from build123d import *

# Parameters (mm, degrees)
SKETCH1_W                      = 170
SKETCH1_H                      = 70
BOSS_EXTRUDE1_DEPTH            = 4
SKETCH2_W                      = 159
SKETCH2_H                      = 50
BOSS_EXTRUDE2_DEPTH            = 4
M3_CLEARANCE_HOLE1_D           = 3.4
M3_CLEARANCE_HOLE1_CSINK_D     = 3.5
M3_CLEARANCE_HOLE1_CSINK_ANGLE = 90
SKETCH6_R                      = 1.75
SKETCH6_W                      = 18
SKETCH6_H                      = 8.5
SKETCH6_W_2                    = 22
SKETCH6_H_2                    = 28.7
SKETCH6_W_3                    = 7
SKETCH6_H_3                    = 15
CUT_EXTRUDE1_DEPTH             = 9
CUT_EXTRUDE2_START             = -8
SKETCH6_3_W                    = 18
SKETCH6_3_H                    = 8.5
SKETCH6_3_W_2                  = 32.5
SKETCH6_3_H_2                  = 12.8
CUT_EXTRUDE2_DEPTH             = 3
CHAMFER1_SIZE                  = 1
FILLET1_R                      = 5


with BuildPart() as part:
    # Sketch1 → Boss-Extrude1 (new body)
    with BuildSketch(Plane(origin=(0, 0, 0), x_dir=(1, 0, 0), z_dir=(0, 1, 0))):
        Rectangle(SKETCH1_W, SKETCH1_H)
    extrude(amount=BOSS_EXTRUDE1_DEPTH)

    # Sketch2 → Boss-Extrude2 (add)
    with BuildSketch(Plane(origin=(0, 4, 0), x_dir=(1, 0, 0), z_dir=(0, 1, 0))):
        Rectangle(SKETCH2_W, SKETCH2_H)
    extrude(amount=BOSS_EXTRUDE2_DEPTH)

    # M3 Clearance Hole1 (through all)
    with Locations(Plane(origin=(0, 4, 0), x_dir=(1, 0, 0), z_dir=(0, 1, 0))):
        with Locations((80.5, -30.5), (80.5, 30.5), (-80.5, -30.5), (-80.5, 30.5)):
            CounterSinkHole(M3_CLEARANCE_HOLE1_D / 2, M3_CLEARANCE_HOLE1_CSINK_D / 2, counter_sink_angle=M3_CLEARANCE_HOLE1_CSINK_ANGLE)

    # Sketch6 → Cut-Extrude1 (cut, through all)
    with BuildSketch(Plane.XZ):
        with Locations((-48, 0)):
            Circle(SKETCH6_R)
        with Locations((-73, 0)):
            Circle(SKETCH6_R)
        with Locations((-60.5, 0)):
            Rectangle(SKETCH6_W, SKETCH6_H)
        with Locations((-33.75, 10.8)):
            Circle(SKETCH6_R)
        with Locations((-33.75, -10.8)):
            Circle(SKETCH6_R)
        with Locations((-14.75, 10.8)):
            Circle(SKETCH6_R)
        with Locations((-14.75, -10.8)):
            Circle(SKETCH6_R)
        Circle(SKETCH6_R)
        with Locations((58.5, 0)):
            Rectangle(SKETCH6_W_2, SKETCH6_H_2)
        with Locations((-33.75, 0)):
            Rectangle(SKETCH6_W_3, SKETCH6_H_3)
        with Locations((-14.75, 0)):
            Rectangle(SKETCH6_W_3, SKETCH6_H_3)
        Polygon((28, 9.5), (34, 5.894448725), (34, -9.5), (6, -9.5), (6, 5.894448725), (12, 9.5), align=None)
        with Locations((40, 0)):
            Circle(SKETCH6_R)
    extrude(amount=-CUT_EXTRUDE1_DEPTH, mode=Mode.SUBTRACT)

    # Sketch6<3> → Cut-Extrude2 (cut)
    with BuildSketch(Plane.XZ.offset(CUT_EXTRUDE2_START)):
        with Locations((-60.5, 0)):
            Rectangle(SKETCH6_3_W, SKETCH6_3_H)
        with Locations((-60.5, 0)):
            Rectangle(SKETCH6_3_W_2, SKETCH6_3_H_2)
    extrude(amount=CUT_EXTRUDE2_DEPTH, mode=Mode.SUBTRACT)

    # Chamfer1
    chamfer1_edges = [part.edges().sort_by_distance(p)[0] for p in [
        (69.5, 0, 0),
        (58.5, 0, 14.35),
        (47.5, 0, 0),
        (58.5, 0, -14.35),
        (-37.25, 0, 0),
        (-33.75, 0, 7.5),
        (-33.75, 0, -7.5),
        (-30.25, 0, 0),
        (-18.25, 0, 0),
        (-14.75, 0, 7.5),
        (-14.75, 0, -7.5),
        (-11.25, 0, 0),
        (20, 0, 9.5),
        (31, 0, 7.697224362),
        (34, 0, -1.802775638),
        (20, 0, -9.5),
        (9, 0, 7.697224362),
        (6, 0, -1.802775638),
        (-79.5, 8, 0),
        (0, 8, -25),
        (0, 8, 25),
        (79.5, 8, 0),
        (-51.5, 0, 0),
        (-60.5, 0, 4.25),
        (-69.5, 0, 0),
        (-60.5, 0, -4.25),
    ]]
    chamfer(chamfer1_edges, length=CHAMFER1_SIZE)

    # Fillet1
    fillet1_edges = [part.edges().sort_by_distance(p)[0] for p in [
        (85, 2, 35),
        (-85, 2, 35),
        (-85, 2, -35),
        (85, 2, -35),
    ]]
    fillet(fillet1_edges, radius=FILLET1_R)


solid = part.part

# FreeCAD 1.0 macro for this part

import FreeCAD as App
import Part
import Sketcher
from FreeCAD import Vector
Q = App.Units.Quantity


def edges_at(feature, points):
    """Names of the edges that pass closest to the given points."""
    edges = feature.Shape.Edges
    near = lambda p: min(range(len(edges)), key=lambda i: edges[i].distToShape(Part.Vertex(*p))[0])
    return sorted({f"Edge{near(p) + 1}" for p in points})

doc = App.newDocument("Part")
params = doc.addObject("Spreadsheet::Sheet", "Params")
for row, (alias, value) in enumerate([
    ("sketch1_width", "170 mm"),
    ("sketch1_height", "70 mm"),
    ("pad1_length", "4 mm"),
    ("sketch2_width", "159 mm"),
    ("sketch2_height", "50 mm"),
    ("pad2_length", "4 mm"),
    ("sketch3_diameter", "3.4 mm"),
    ("hole_diameter", "3.4 mm"),
    ("hole_csink_diameter", "3.5 mm"),
    ("sketch4_diameter", "3.5 mm"),
    ("sketch4_width", "18 mm"),
    ("sketch4_width2", "22 mm"),
    ("sketch4_width3", "7 mm"),
    ("sketch4_width4", "16 mm"),
    ("sketch5_width", "32.5 mm"),
    ("sketch5_height", "12.8 mm"),
    ("pocket2_length", "3 mm"),
    ("chamfer_size", "1 mm"),
    ("fillet_radius", "5 mm"),
], start=1):
    params.set(f"A{row}", alias)
    params.set(f"B{row}", "=" + value)
    params.setAlias(f"B{row}", alias)

body = doc.addObject("PartDesign::Body", "Body")

# Sketch on XZ plane
sketch1 = doc.addObject("Sketcher::SketchObject", "Sketch")
body.addObject(sketch1)
sketch1.AttachmentSupport = (doc.XZ_Plane, [""])
sketch1.MapMode = "FlatFace"
sketch1.addGeometry([
    Part.LineSegment(Vector(-85, -35, 0), Vector(-85, 35, 0)),
    Part.LineSegment(Vector(-85, 35, 0), Vector(85, 35, 0)),
    Part.LineSegment(Vector(85, 35, 0), Vector(85, -35, 0)),
    Part.LineSegment(Vector(85, -35, 0), Vector(-85, -35, 0)),
], False)
sketch1.addConstraint([
    Sketcher.Constraint("Coincident", 0, 2, 1, 1),
    Sketcher.Constraint("Coincident", 1, 2, 2, 1),
    Sketcher.Constraint("Coincident", 2, 2, 3, 1),
    Sketcher.Constraint("Coincident", 3, 2, 0, 1),
    Sketcher.Constraint("Vertical", 0),
    Sketcher.Constraint("Horizontal", 1),
    Sketcher.Constraint("Vertical", 2),
    Sketcher.Constraint("Horizontal", 3),
    Sketcher.Constraint("Symmetric", 0, 2, 2, 2, -1, 1),
    Sketcher.Constraint("DistanceX", 1, 1, 1, 2, Q("170 mm")),
    Sketcher.Constraint("DistanceY", 0, 1, 0, 2, Q("70 mm")),
])
sketch1.setExpression("Constraints[9]", "Params.sketch1_width")
sketch1.setExpression("Constraints[10]", "Params.sketch1_height")
pad1 = doc.addObject("PartDesign::Pad", "Pad")
body.addObject(pad1)
pad1.Profile = sketch1
pad1.setExpression("Length", "Params.pad1_length")
pad1.Reversed = True

# Sketch on XZ plane
sketch2 = doc.addObject("Sketcher::SketchObject", "Sketch001")
body.addObject(sketch2)
sketch2.AttachmentSupport = (doc.XZ_Plane, [""])
sketch2.MapMode = "FlatFace"
sketch2.AttachmentOffset = App.Placement(Vector(0, 0, -4), App.Rotation())
sketch2.addGeometry([
    Part.LineSegment(Vector(-80, -25, 0), Vector(-80, 25, 0)),
    Part.LineSegment(Vector(-80, 25, 0), Vector(80, 25, 0)),
    Part.LineSegment(Vector(80, 25, 0), Vector(80, -25, 0)),
    Part.LineSegment(Vector(80, -25, 0), Vector(-80, -25, 0)),
], False)
sketch2.addConstraint([
    Sketcher.Constraint("Coincident", 0, 2, 1, 1),
    Sketcher.Constraint("Coincident", 1, 2, 2, 1),
    Sketcher.Constraint("Coincident", 2, 2, 3, 1),
    Sketcher.Constraint("Coincident", 3, 2, 0, 1),
    Sketcher.Constraint("Vertical", 0),
    Sketcher.Constraint("Horizontal", 1),
    Sketcher.Constraint("Vertical", 2),
    Sketcher.Constraint("Horizontal", 3),
    Sketcher.Constraint("Symmetric", 0, 2, 2, 2, -1, 1),
    Sketcher.Constraint("DistanceX", 1, 1, 1, 2, Q("159 mm")),
    Sketcher.Constraint("DistanceY", 0, 1, 0, 2, Q("50 mm")),
])
sketch2.setExpression("Constraints[9]", "Params.sketch2_width")
sketch2.setExpression("Constraints[10]", "Params.sketch2_height")
pad2 = doc.addObject("PartDesign::Pad", "Pad001")
body.addObject(pad2)
pad2.Profile = sketch2
pad2.setExpression("Length", "Params.pad2_length")
pad2.Reversed = True

# Sketch on XZ plane
sketch3 = doc.addObject("Sketcher::SketchObject", "Sketch002")
body.addObject(sketch3)
sketch3.AttachmentSupport = (doc.XZ_Plane, [""])
sketch3.MapMode = "FlatFace"
sketch3.AttachmentOffset = App.Placement(Vector(0, 0, -4), App.Rotation())
sketch3.addGeometry([
    Part.Circle(Vector(80.5, 30.5, 0), Vector(0, 0, 1), 1.7),
    Part.Circle(Vector(80.5, -30.5, 0), Vector(0, 0, 1), 1.7),
    Part.Circle(Vector(-80.5, 30.5, 0), Vector(0, 0, 1), 1.7),
    Part.Circle(Vector(-80.5, -30.5, 0), Vector(0, 0, 1), 1.7),
], False)
sketch3.addConstraint([
    Sketcher.Constraint("Equal", 0, 1),
    Sketcher.Constraint("Equal", 1, 2),
    Sketcher.Constraint("Equal", 2, 3),
    Sketcher.Constraint("Symmetric", 1, 3, 2, 3, -1, 1),
    Sketcher.Constraint("Symmetric", 0, 3, 3, 3, -1, 1),
    Sketcher.Constraint("Symmetric", 0, 3, 2, 3, -2),
    Sketcher.Constraint("Diameter", 0, Q("3.4 mm")),
    Sketcher.Constraint("DistanceY", 1, 3, 0, 3, Q("61 mm")),
    Sketcher.Constraint("DistanceX", 2, 3, 0, 3, Q("161 mm")),
])
sketch3.setExpression("Constraints[6]", "Params.sketch3_diameter")
doc.recompute()
hole = doc.addObject("PartDesign::Hole", "Hole")
body.addObject(hole)
hole.Profile = sketch3
hole.ThreadType = "None"
hole.setExpression("Diameter", "Params.hole_diameter")
hole.DepthType = "ThroughAll"
hole.HoleCutType = "Countersink"
hole.setExpression("HoleCutDiameter", "Params.hole_csink_diameter")
hole.HoleCutCountersinkAngle = 90
hole.Reversed = True

# Sketch on XZ plane
sketch4 = doc.addObject("Sketcher::SketchObject", "Sketch003")
body.addObject(sketch4)
sketch4.AttachmentSupport = (doc.XZ_Plane, [""])
sketch4.MapMode = "FlatFace"
sketch4.addGeometry([
    Part.Circle(Vector(-48, 0, 0), Vector(0, 0, 1), 1.8),  # 0
    Part.Circle(Vector(-73, 0, 0), Vector(0, 0, 1), 1.8),  # 1
    Part.LineSegment(Vector(-69.5, 4.2, 0), Vector(-69.5, -4.2, 0)),  # 2
    Part.LineSegment(Vector(-69.5, -4.2, 0), Vector(-51.5, -4.2, 0)),  # 3
    Part.LineSegment(Vector(-51.5, -4.2, 0), Vector(-51.5, 4.2, 0)),  # 4
    Part.LineSegment(Vector(-51.5, 4.2, 0), Vector(-69.5, 4.2, 0)),  # 5
    Part.Circle(Vector(-33.8, 10.8, 0), Vector(0, 0, 1), 1.8),  # 6
    Part.Circle(Vector(-33.8, -10.8, 0), Vector(0, 0, 1), 1.8),  # 7
    Part.Circle(Vector(-14.8, 10.8, 0), Vector(0, 0, 1), 1.8),  # 8
    Part.Circle(Vector(-14.8, -10.8, 0), Vector(0, 0, 1), 1.8),  # 9
    Part.Circle(Vector(0, 0, 0), Vector(0, 0, 1), 1.8),  # 10
    Part.LineSegment(Vector(47.5, 14.3, 0), Vector(47.5, -14.3, 0)),  # 11
    Part.LineSegment(Vector(47.5, -14.3, 0), Vector(69.5, -14.3, 0)),  # 12
    Part.LineSegment(Vector(69.5, -14.3, 0), Vector(69.5, 14.3, 0)),  # 13
    Part.LineSegment(Vector(69.5, 14.3, 0), Vector(47.5, 14.3, 0)),  # 14
    Part.LineSegment(Vector(-37.2, 7.5, 0), Vector(-37.2, -7.5, 0)),  # 15
    Part.LineSegment(Vector(-37.2, -7.5, 0), Vector(-30.2, -7.5, 0)),  # 16
    Part.LineSegment(Vector(-30.2, -7.5, 0), Vector(-30.2, 7.5, 0)),  # 17
    Part.LineSegment(Vector(-30.2, 7.5, 0), Vector(-37.2, 7.5, 0)),  # 18
    Part.LineSegment(Vector(-18.2, 7.5, 0), Vector(-18.2, -7.5, 0)),  # 19
    Part.LineSegment(Vector(-18.2, -7.5, 0), Vector(-11.2, -7.5, 0)),  # 20
    Part.LineSegment(Vector(-11.2, -7.5, 0), Vector(-11.2, 7.5, 0)),  # 21
    Part.LineSegment(Vector(-11.2, 7.5, 0), Vector(-18.2, 7.5, 0)),  # 22
    Part.LineSegment(Vector(34, 5.9, 0), Vector(28, 9.5, 0)),  # 23
    Part.LineSegment(Vector(28, 9.5, 0), Vector(12, 9.5, 0)),  # 24
    Part.LineSegment(Vector(12, 9.5, 0), Vector(6, 5.9, 0)),  # 25
    Part.LineSegment(Vector(6, 5.9, 0), Vector(6, -9.5, 0)),  # 26
    Part.LineSegment(Vector(6, -9.5, 0), Vector(34, -9.5, 0)),  # 27
    Part.LineSegment(Vector(34, -9.5, 0), Vector(34, 5.9, 0)),  # 28
    Part.Circle(Vector(40, 0, 0), Vector(0, 0, 1), 1.8),  # 29
], False)
sketch4.addConstraint([
    Sketcher.Constraint("Coincident", 2, 2, 3, 1),
    Sketcher.Constraint("Coincident", 3, 2, 4, 1),
    Sketcher.Constraint("Coincident", 4, 2, 5, 1),
    Sketcher.Constraint("Coincident", 5, 2, 2, 1),
    Sketcher.Constraint("Coincident", 11, 2, 12, 1),
    Sketcher.Constraint("Coincident", 12, 2, 13, 1),
    Sketcher.Constraint("Coincident", 13, 2, 14, 1),
    Sketcher.Constraint("Coincident", 14, 2, 11, 1),
    Sketcher.Constraint("Coincident", 15, 2, 16, 1),
    Sketcher.Constraint("Coincident", 16, 2, 17, 1),
    Sketcher.Constraint("Coincident", 17, 2, 18, 1),
    Sketcher.Constraint("Coincident", 18, 2, 15, 1),
    Sketcher.Constraint("Coincident", 19, 2, 20, 1),
    Sketcher.Constraint("Coincident", 20, 2, 21, 1),
    Sketcher.Constraint("Coincident", 21, 2, 22, 1),
    Sketcher.Constraint("Coincident", 22, 2, 19, 1),
    Sketcher.Constraint("Coincident", 23, 2, 24, 1),
    Sketcher.Constraint("Coincident", 24, 2, 25, 1),
    Sketcher.Constraint("Coincident", 25, 2, 26, 1),
    Sketcher.Constraint("Coincident", 26, 2, 27, 1),
    Sketcher.Constraint("Coincident", 27, 2, 28, 1),
    Sketcher.Constraint("Coincident", 28, 2, 23, 1),
    Sketcher.Constraint("Vertical", 2),
    Sketcher.Constraint("Horizontal", 3),
    Sketcher.Constraint("Vertical", 4),
    Sketcher.Constraint("Horizontal", 5),
    Sketcher.Constraint("Vertical", 11),
    Sketcher.Constraint("Horizontal", 12),
    Sketcher.Constraint("Vertical", 13),
    Sketcher.Constraint("Horizontal", 14),
    Sketcher.Constraint("Vertical", 15),
    Sketcher.Constraint("Horizontal", 16),
    Sketcher.Constraint("Vertical", 17),
    Sketcher.Constraint("Horizontal", 18),
    Sketcher.Constraint("Vertical", 19),
    Sketcher.Constraint("Horizontal", 20),
    Sketcher.Constraint("Vertical", 21),
    Sketcher.Constraint("Horizontal", 22),
    Sketcher.Constraint("Horizontal", 24),
    Sketcher.Constraint("Vertical", 26),
    Sketcher.Constraint("Horizontal", 27),
    Sketcher.Constraint("Vertical", 28),
    Sketcher.Constraint("Coincident", 10, 3, -1, 1),
    Sketcher.Constraint("Equal", 0, 1),
    Sketcher.Constraint("Equal", 1, 6),
    Sketcher.Constraint("Equal", 6, 7),
    Sketcher.Constraint("Equal", 7, 8),
    Sketcher.Constraint("Equal", 8, 9),
    Sketcher.Constraint("Equal", 9, 10),
    Sketcher.Constraint("Equal", 10, 29),
    Sketcher.Constraint("Symmetric", 6, 3, 7, 3, -1),
    Sketcher.Constraint("Symmetric", 8, 3, 9, 3, -1),
    Sketcher.Constraint("PointOnObject", 0, 3, -1),
    Sketcher.Constraint("PointOnObject", 1, 3, -1),
    Sketcher.Constraint("PointOnObject", 29, 3, -1),
    Sketcher.Constraint("Horizontal", 6, 3, 8, 3),
    Sketcher.Constraint("Horizontal", 16, 2, 19, 2),
    Sketcher.Constraint("Horizontal", 18, 2, 21, 2),
    Sketcher.Constraint("Horizontal", 25, 2, 28, 2),
    Sketcher.Constraint("Equal", 18, 20),
    Sketcher.Constraint("Equal", 23, 25),
    Sketcher.Constraint("Diameter", 0, Q("3.5 mm")),
    Sketcher.Constraint("DistanceX", 3, 1, 3, 2, Q("18 mm")),
    Sketcher.Constraint("DistanceX", 12, 1, 12, 2, Q("22 mm")),
    Sketcher.Constraint("DistanceX", 16, 1, 16, 2, Q("7 mm")),
    Sketcher.Constraint("DistanceX", 24, 2, 24, 1, Q("16 mm")),
    Sketcher.Constraint("DistanceX", 27, 1, 27, 2, Q("28 mm")),
    Sketcher.Constraint("DistanceY", 15, 2, 15, 1, Q("15 mm")),
    Sketcher.Constraint("Distance", 23, Q("7 mm")),
    Sketcher.Constraint("DistanceY", 2, 2, 2, 1, Q("8.5 mm")),
    Sketcher.Constraint("DistanceY", 11, 2, 11, 1, Q("28.7 mm")),
    Sketcher.Constraint("DistanceX", 0, 3, -1, 1, Q("48 mm")),
    Sketcher.Constraint("DistanceX", 1, 3, -1, 1, Q("73 mm")),
    Sketcher.Constraint("DistanceX", -1, 1, 29, 3, Q("40 mm")),
    Sketcher.Constraint("DistanceX", -1, 1, 23, 2, Q("28 mm")),
    Sketcher.Constraint("DistanceX", 6, 3, 8, 3, Q("19 mm")),
    Sketcher.Constraint("DistanceX", 16, 2, 19, 2, Q("12 mm")),
    Sketcher.Constraint("DistanceY", 21, 2, 23, 2, Q("2 mm")),
    Sketcher.Constraint("DistanceY", 26, 2, 20, 2, Q("2 mm")),
    Sketcher.Constraint("DistanceY", -1, 1, 6, 3, Q("10.8 mm")),
    Sketcher.Constraint("DistanceX", 2, 2, -1, 1, Q("69.5 mm")),
    Sketcher.Constraint("DistanceX", -1, 1, 11, 2, Q("47.5 mm")),
    Sketcher.Constraint("DistanceY", 15, 2, -1, 1, Q("7.5 mm")),
    Sketcher.Constraint("DistanceX", 15, 2, 7, 3, Q("3.5 mm")),
    Sketcher.Constraint("DistanceX", 6, 3, -1, 1, Q("33.75 mm")),
    Sketcher.Constraint("DistanceY", 2, 2, -1, 1, Q("4.25 mm")),
    Sketcher.Constraint("DistanceY", 11, 2, -1, 1, Q("14.35 mm")),
])
sketch4.setExpression("Constraints[61]", "Params.sketch4_diameter")
sketch4.setExpression("Constraints[62]", "Params.sketch4_width")
sketch4.setExpression("Constraints[63]", "Params.sketch4_width2")
sketch4.setExpression("Constraints[64]", "Params.sketch4_width3")
sketch4.setExpression("Constraints[65]", "Params.sketch4_width4")
pocket1 = doc.addObject("PartDesign::Pocket", "Pocket")
body.addObject(pocket1)
pocket1.Profile = sketch4
pocket1.Type = "ThroughAll"

# Sketch on XZ plane
sketch5 = doc.addObject("Sketcher::SketchObject", "Sketch004")
body.addObject(sketch5)
sketch5.AttachmentSupport = (doc.XZ_Plane, [""])
sketch5.MapMode = "FlatFace"
sketch5.AttachmentOffset = App.Placement(Vector(0, 0, -8), App.Rotation())
sketch5.addGeometry([
    Part.LineSegment(Vector(-77, 6, 0), Vector(-77, -6, 0)),
    Part.LineSegment(Vector(-77, -6, 0), Vector(-44, -6, 0)),
    Part.LineSegment(Vector(-44, -6, 0), Vector(-44, 6, 0)),
    Part.LineSegment(Vector(-44, 6, 0), Vector(-77, 6, 0)),
], False)
sketch5.addConstraint([
    Sketcher.Constraint("Coincident", 0, 2, 1, 1),
    Sketcher.Constraint("Coincident", 1, 2, 2, 1),
    Sketcher.Constraint("Coincident", 2, 2, 3, 1),
    Sketcher.Constraint("Coincident", 3, 2, 0, 1),
    Sketcher.Constraint("Vertical", 0),
    Sketcher.Constraint("Horizontal", 1),
    Sketcher.Constraint("Vertical", 2),
    Sketcher.Constraint("Horizontal", 3),
    Sketcher.Constraint("DistanceX", 1, 1, 1, 2, Q("32.5 mm")),
    Sketcher.Constraint("DistanceY", 0, 2, 0, 1, Q("12.8 mm")),
    Sketcher.Constraint("DistanceY", 0, 2, -1, 1, Q("6.4 mm")),
    Sketcher.Constraint("DistanceX", 0, 2, -1, 1, Q("76.75 mm")),
])
sketch5.setExpression("Constraints[8]", "Params.sketch5_width")
sketch5.setExpression("Constraints[9]", "Params.sketch5_height")
pocket2 = doc.addObject("PartDesign::Pocket", "Pocket001")
body.addObject(pocket2)
pocket2.Profile = sketch5
pocket2.setExpression("Length", "Params.pocket2_length")
pocket2.Reversed = True
doc.recompute()

chamfer = doc.addObject("PartDesign::Chamfer", "Chamfer")
body.addObject(chamfer)
chamfer.Base = (pocket2, edges_at(pocket2, [
    (69.5, 0, 0),
    (58.5, 0, 14.35),
    (47.5, 0, 0),
    (58.5, 0, -14.35),
    (-37.25, 0, 0),
    (-33.75, 0, 7.5),
    (-33.75, 0, -7.5),
    (-30.25, 0, 0),
    (-18.25, 0, 0),
    (-14.75, 0, 7.5),
    (-14.75, 0, -7.5),
    (-11.25, 0, 0),
    (20, 0, 9.5),
    (31, 0, 7.697),
    (34, 0, -1.803),
    (20, 0, -9.5),
    (9, 0, 7.697),
    (6, 0, -1.803),
    (-79.5, 8, 0),
    (0, 8, -25),
    (0, 8, 25),
    (79.5, 8, 0),
    (-51.5, 0, 0),
    (-60.5, 0, 4.25),
    (-69.5, 0, 0),
    (-60.5, 0, -4.25),
]))
chamfer.setExpression("Size", "Params.chamfer_size")
doc.recompute()

fillet = doc.addObject("PartDesign::Fillet", "Fillet")
body.addObject(fillet)
fillet.Base = (chamfer, edges_at(chamfer, [
    (85, 2, 35),
    (-85, 2, 35),
    (-85, 2, -35),
    (85, 2, -35),
]))
fillet.setExpression("Radius", "Params.fillet_radius")

doc.recompute()
